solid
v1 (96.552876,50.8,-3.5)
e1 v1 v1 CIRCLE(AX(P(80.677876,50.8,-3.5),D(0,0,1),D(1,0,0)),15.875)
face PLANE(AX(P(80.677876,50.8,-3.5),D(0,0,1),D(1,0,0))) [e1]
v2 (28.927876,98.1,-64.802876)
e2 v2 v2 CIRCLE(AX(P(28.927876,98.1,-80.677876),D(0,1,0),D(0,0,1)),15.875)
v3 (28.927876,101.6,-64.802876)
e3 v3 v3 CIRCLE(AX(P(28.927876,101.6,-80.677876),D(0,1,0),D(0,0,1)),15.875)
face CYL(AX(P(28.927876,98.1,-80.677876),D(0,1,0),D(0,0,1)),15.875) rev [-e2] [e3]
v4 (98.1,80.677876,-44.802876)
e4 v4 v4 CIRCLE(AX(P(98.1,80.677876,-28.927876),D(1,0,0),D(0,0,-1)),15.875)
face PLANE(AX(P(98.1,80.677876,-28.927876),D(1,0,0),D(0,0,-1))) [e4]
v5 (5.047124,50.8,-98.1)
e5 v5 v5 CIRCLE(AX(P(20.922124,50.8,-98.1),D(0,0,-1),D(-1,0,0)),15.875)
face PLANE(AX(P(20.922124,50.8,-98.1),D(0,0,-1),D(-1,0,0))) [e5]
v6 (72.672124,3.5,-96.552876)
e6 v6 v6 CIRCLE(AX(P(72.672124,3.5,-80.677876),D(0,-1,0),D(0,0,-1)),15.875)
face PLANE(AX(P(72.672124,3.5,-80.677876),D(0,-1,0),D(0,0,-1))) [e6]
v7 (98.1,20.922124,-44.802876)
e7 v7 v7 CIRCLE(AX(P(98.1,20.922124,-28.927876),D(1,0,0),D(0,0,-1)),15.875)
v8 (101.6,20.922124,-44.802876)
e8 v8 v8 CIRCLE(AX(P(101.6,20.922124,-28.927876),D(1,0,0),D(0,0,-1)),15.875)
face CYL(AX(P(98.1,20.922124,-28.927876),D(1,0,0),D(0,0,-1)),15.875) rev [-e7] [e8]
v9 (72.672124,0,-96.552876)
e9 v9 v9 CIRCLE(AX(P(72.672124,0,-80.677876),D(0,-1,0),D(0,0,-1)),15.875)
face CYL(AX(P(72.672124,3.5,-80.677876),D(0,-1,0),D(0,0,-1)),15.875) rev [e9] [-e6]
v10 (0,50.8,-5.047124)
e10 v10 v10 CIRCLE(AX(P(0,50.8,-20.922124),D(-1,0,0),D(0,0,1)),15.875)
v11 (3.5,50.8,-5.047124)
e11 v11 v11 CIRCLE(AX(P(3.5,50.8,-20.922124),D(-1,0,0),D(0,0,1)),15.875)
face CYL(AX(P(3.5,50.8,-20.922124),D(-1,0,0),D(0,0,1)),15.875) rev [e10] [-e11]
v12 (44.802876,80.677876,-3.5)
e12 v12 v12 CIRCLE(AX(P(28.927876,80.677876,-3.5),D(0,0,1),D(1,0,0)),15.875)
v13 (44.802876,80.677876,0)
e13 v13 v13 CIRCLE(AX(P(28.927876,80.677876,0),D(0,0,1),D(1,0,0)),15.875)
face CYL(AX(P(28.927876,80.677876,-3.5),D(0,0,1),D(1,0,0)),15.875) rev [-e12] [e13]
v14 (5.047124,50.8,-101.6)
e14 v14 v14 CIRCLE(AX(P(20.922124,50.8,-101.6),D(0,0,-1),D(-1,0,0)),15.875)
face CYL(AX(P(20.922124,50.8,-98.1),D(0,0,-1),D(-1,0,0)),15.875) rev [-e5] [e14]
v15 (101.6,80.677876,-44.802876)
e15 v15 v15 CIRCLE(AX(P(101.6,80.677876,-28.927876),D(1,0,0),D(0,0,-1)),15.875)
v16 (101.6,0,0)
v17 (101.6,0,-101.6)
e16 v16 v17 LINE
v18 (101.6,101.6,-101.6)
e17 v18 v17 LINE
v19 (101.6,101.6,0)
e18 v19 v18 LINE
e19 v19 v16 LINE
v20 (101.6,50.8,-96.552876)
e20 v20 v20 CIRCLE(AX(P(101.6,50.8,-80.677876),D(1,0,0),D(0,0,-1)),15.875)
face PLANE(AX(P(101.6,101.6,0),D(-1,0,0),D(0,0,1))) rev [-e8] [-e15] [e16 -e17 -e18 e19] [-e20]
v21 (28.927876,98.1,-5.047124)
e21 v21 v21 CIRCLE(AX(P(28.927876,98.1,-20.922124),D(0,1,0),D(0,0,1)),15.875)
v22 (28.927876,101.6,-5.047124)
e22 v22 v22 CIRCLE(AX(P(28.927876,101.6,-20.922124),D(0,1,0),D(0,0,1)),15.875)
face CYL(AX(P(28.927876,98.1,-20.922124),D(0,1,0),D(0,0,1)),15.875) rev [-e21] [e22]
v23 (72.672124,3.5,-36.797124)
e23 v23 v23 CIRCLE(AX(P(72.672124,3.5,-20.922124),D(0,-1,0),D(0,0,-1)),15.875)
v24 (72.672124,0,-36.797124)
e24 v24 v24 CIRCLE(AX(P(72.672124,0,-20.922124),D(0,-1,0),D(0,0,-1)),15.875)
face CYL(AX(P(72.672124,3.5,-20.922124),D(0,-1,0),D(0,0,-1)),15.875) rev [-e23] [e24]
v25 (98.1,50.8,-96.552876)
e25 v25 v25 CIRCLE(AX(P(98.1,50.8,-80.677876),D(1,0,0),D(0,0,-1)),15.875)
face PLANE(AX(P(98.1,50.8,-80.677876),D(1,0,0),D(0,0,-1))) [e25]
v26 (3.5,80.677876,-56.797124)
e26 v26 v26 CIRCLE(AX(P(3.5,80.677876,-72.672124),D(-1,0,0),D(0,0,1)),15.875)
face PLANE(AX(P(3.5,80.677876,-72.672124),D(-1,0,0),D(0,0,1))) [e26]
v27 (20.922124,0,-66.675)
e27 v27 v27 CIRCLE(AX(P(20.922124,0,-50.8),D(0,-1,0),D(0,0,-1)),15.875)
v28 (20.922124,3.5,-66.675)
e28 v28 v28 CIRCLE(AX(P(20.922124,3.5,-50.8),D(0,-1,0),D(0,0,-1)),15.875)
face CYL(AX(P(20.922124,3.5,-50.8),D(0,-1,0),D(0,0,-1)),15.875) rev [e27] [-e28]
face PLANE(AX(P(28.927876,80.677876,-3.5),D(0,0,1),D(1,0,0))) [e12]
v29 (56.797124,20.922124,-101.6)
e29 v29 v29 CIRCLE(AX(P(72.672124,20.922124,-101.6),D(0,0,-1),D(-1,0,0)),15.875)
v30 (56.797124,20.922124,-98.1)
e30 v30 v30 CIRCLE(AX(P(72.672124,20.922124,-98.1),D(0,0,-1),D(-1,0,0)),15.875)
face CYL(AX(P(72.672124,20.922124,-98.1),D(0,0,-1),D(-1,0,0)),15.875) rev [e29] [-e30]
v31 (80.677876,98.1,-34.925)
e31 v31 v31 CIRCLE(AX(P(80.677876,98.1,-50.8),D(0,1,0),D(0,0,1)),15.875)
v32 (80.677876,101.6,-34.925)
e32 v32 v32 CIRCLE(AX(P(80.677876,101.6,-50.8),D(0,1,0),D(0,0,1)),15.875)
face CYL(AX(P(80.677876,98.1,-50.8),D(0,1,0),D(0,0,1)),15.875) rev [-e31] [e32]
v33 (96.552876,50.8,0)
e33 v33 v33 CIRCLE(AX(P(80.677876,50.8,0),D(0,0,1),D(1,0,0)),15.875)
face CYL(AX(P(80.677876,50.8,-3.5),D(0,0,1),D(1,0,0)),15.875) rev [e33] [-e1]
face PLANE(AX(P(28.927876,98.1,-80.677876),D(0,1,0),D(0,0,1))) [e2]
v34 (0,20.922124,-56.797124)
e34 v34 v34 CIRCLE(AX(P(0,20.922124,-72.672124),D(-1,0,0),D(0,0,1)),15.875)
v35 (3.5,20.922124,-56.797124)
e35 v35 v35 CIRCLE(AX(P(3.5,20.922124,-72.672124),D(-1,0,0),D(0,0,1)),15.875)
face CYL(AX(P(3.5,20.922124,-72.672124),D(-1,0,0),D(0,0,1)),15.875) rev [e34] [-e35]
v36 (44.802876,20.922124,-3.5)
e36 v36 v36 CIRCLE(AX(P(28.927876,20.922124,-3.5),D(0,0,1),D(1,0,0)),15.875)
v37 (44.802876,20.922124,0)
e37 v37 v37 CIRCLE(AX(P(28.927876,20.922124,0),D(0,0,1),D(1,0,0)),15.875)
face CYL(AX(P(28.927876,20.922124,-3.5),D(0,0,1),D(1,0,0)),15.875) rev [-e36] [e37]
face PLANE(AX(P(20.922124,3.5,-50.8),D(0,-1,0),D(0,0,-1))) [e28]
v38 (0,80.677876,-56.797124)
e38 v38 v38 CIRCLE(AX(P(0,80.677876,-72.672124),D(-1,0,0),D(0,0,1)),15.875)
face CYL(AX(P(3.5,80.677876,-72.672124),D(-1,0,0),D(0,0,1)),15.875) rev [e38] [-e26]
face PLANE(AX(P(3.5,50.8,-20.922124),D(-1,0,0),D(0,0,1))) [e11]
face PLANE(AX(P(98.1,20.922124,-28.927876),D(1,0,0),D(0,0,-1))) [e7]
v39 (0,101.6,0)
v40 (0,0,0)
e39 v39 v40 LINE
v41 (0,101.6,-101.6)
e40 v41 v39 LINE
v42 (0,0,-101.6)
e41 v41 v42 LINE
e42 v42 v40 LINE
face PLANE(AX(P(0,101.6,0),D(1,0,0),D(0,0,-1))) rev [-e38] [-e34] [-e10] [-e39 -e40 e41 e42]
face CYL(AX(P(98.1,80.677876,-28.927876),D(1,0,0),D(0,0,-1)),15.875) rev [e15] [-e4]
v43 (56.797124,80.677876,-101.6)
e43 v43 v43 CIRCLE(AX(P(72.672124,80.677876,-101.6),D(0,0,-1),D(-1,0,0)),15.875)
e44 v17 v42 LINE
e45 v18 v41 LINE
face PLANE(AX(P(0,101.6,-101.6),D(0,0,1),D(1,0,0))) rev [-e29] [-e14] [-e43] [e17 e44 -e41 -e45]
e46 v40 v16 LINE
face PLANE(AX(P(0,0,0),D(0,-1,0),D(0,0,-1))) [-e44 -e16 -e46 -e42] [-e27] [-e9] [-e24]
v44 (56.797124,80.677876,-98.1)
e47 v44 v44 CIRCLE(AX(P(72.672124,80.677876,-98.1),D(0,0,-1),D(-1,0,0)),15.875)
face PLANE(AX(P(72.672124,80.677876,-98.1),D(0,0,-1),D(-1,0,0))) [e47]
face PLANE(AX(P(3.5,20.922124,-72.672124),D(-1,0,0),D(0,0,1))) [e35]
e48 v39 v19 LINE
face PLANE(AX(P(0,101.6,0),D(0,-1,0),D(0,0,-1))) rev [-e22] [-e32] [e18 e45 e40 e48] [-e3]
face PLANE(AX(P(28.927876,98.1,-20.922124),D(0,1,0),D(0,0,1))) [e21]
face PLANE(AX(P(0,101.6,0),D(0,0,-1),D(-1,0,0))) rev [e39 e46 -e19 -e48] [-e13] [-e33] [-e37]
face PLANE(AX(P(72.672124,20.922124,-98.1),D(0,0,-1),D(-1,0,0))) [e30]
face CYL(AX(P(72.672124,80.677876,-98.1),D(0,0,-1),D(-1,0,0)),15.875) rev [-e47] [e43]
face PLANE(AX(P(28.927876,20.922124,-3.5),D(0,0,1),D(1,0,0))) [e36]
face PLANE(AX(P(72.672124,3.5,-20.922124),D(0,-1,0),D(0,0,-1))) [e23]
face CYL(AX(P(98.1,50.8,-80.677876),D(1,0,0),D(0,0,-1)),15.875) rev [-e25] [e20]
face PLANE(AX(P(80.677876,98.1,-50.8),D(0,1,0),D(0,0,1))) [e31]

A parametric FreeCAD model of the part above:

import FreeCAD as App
import Part
import Sketcher

V = App.Vector
Q = App.Units.Quantity

doc = App.newDocument("Part")
params = doc.addObject("Spreadsheet::Sheet", "Params")
for row, (alias, value) in enumerate([
    ("sketch1_width", "4 in"),
    ("pad1_length", "4 in"),
    ("sketch2_diameter", "1.25 in"),
    ("pocket1_length", "3.5 mm"),
    ("sketch3_diameter", "1.25 in"),
    ("pocket2_length", "3.5 mm"),
    ("sketch4_diameter", "1.25 in"),
    ("pocket3_length", "3.5 mm"),
    ("sketch5_diameter", "1.25 in"),
    ("pocket4_length", "3.5 mm"),
    ("sketch6_diameter", "1.25 in"),
    ("pocket5_length", "3.5 mm"),
    ("sketch7_diameter", "1.25 in"),
    ("pocket6_length", "3.5 mm"),
], start=1):
    params.set(f"A{row}", alias)
    params.set(f"B{row}", "=" + value)
    params.setAlias(f"B{row}", alias)

body = doc.addObject("PartDesign::Body", "Body")

# Sketch on XZ plane
sketch1 = doc.addObject("Sketcher::SketchObject", "Sketch")
body.addObject(sketch1)
sketch1.AttachmentSupport = (doc.XZ_Plane, [""])
sketch1.MapMode = "FlatFace"
sketch1.addGeometry([
    Part.LineSegment(V(0, -102, 0), V(0, 0, 0)),
    Part.LineSegment(V(0, 0, 0), V(102, 0, 0)),
    Part.LineSegment(V(102, 0, 0), V(102, -102, 0)),
    Part.LineSegment(V(102, -102, 0), V(0, -102, 0)),
], False)
sketch1.addConstraint([
    Sketcher.Constraint("Coincident", 0, 2, 1, 1),
    Sketcher.Constraint("Coincident", 1, 2, 2, 1),
    Sketcher.Constraint("Coincident", 2, 2, 3, 1),
    Sketcher.Constraint("Coincident", 3, 2, 0, 1),
    Sketcher.Constraint("Vertical", 0),
    Sketcher.Constraint("Horizontal", 1),
    Sketcher.Constraint("Vertical", 2),
    Sketcher.Constraint("Horizontal", 3),
    Sketcher.Constraint("Coincident", 0, 2, -1, 1),
    Sketcher.Constraint("Equal", 3, 0),
    Sketcher.Constraint("DistanceX", 1, 1, 1, 2, Q("4 in")),
])
sketch1.setExpression("Constraints[10]", "Params.sketch1_width")
pad1 = doc.addObject("PartDesign::Pad", "Pad")
body.addObject(pad1)
pad1.Profile = sketch1
pad1.setExpression("Length", "Params.pad1_length")
pad1.Reversed = True

# Sketch on XZ plane
sketch2 = doc.addObject("Sketcher::SketchObject", "Sketch001")
body.addObject(sketch2)
sketch2.AttachmentSupport = (doc.XZ_Plane, [""])
sketch2.MapMode = "FlatFace"
sketch2.AttachmentOffset = App.Placement(V(0, 0, -4 * 25.4), App.Rotation())
sketch2.addGeometry([
    Part.Circle(V(29, -21, 0), V(0, 0, 1), 16),
    Part.Circle(V(29, -81, 0), V(0, 0, 1), 16),
    Part.Circle(V(81, -51, 0), V(0, 0, 1), 16),
], False)
sketch2.addConstraint([
    Sketcher.Constraint("Equal", 0, 1),
    Sketcher.Constraint("Equal", 1, 2),
    Sketcher.Constraint("Vertical", 0, 3, 1, 3),
    Sketcher.Constraint("Diameter", 0, Q("1.25 in")),
    Sketcher.Constraint("DistanceY", 2, 3, -1, 1, Q("2 in")),
    Sketcher.Constraint("DistanceX", 0, 3, 2, 3, Q("51.75 mm")),
    Sketcher.Constraint("DistanceX", -1, 1, 0, 3, Q("28.927876 mm")),
    Sketcher.Constraint("DistanceY", 0, 3, -1, 1, Q("20.922124 mm")),
    Sketcher.Constraint("DistanceY", 1, 3, -1, 1, Q("80.677876 mm")),
])
sketch2.setExpression("Constraints[3]", "Params.sketch2_diameter")
pocket1 = doc.addObject("PartDesign::Pocket", "Pocket")
body.addObject(pocket1)
pocket1.Profile = sketch2
pocket1.setExpression("Length", "Params.pocket1_length")
pocket1.Reversed = True

# Sketch on YZ plane
sketch3 = doc.addObject("Sketcher::SketchObject", "Sketch002")
body.addObject(sketch3)
sketch3.AttachmentSupport = (doc.YZ_Plane, [""])
sketch3.MapMode = "FlatFace"
sketch3.addGeometry([
    Part.Circle(V(21, -73, 0), V(0, 0, 1), 16),
    Part.Circle(V(81, -73, 0), V(0, 0, 1), 16),
    Part.Circle(V(51, -21, 0), V(0, 0, 1), 16),
], False)
sketch3.addConstraint([
    Sketcher.Constraint("Equal", 0, 1),
    Sketcher.Constraint("Equal", 1, 2),
    Sketcher.Constraint("Horizontal", 0, 3, 1, 3),
    Sketcher.Constraint("Diameter", 0, Q("1.25 in")),
    Sketcher.Constraint("DistanceX", -1, 1, 2, 3, Q("2 in")),
    Sketcher.Constraint("DistanceY", 0, 3, 2, 3, Q("51.75 mm")),
    Sketcher.Constraint("DistanceX", -1, 1, 0, 3, Q("20.922124 mm")),
    Sketcher.Constraint("DistanceY", 0, 3, -1, 1, Q("72.672124 mm")),
    Sketcher.Constraint("DistanceX", -1, 1, 1, 3, Q("80.677876 mm")),
])
sketch3.setExpression("Constraints[3]", "Params.sketch3_diameter")
pocket2 = doc.addObject("PartDesign::Pocket", "Pocket001")
body.addObject(pocket2)
pocket2.Profile = sketch3
pocket2.setExpression("Length", "Params.pocket2_length")
pocket2.Reversed = True

# Sketch on XY plane
sketch4 = doc.addObject("Sketcher::SketchObject", "Sketch003")
body.addObject(sketch4)
sketch4.AttachmentSupport = (doc.XY_Plane, [""])
sketch4.MapMode = "FlatFace"
sketch4.AttachmentOffset = App.Placement(V(0, 0, -4 * 25.4), App.Rotation())
sketch4.addGeometry([
    Part.Circle(V(73, 21, 0), V(0, 0, 1), 16),
    Part.Circle(V(73, 81, 0), V(0, 0, 1), 16),
    Part.Circle(V(21, 51, 0), V(0, 0, 1), 16),
], False)
sketch4.addConstraint([
    Sketcher.Constraint("Equal", 0, 1),
    Sketcher.Constraint("Equal", 1, 2),
    Sketcher.Constraint("Vertical", 0, 3, 1, 3),
    Sketcher.Constraint("Diameter", 0, Q("1.25 in")),
    Sketcher.Constraint("DistanceY", -1, 1, 2, 3, Q("2 in")),
    Sketcher.Constraint("DistanceX", 2, 3, 0, 3, Q("51.75 mm")),
    Sketcher.Constraint("DistanceX", -1, 1, 0, 3, Q("72.672124 mm")),
    Sketcher.Constraint("DistanceY", -1, 1, 0, 3, Q("20.922124 mm")),
    Sketcher.Constraint("DistanceY", -1, 1, 1, 3, Q("80.677876 mm")),
])
sketch4.setExpression("Constraints[3]", "Params.sketch4_diameter")
pocket3 = doc.addObject("PartDesign::Pocket", "Pocket002")
body.addObject(pocket3)
pocket3.Profile = sketch4
pocket3.setExpression("Length", "Params.pocket3_length")
pocket3.Reversed = True

# Sketch on YZ plane
sketch5 = doc.addObject("Sketcher::SketchObject", "Sketch004")
body.addObject(sketch5)
sketch5.AttachmentSupport = (doc.YZ_Plane, [""])
sketch5.MapMode = "FlatFace"
sketch5.AttachmentOffset = App.Placement(V(0, 0, 4 * 25.4), App.Rotation())
sketch5.addGeometry([
    Part.Circle(V(21, -29, 0), V(0, 0, 1), 16),
    Part.Circle(V(81, -29, 0), V(0, 0, 1), 16),
    Part.Circle(V(51, -81, 0), V(0, 0, 1), 16),
], False)
sketch5.addConstraint([
    Sketcher.Constraint("Equal", 0, 1),
    Sketcher.Constraint("Equal", 1, 2),
    Sketcher.Constraint("Horizontal", 0, 3, 1, 3),
    Sketcher.Constraint("Diameter", 0, Q("1.25 in")),
    Sketcher.Constraint("DistanceX", -1, 1, 2, 3, Q("2 in")),
    Sketcher.Constraint("DistanceY", 2, 3, 0, 3, Q("51.75 mm")),
    Sketcher.Constraint("DistanceX", -1, 1, 0, 3, Q("20.922124 mm")),
    Sketcher.Constraint("DistanceY", 0, 3, -1, 1, Q("28.927876 mm")),
    Sketcher.Constraint("DistanceX", -1, 1, 1, 3, Q("80.677876 mm")),
])
sketch5.setExpression("Constraints[3]", "Params.sketch5_diameter")
pocket4 = doc.addObject("PartDesign::Pocket", "Pocket003")
body.addObject(pocket4)
pocket4.Profile = sketch5
pocket4.setExpression("Length", "Params.pocket4_length")

# Sketch on XY plane
sketch6 = doc.addObject("Sketcher::SketchObject", "Sketch005")
body.addObject(sketch6)
sketch6.AttachmentSupport = (doc.XY_Plane, [""])
sketch6.MapMode = "FlatFace"
sketch6.addGeometry([
    Part.Circle(V(29, 21, 0), V(0, 0, 1), 16),
    Part.Circle(V(29, 81, 0), V(0, 0, 1), 16),
    Part.Circle(V(81, 51, 0), V(0, 0, 1), 16),
], False)
sketch6.addConstraint([
    Sketcher.Constraint("Equal", 0, 1),
    Sketcher.Constraint("Equal", 1, 2),
    Sketcher.Constraint("Vertical", 0, 3, 1, 3),
    Sketcher.Constraint("Diameter", 0, Q("1.25 in")),
    Sketcher.Constraint("DistanceY", -1, 1, 2, 3, Q("2 in")),
    Sketcher.Constraint("DistanceX", 0, 3, 2, 3, Q("51.75 mm")),
    Sketcher.Constraint("DistanceX", -1, 1, 0, 3, Q("28.927876 mm")),
    Sketcher.Constraint("DistanceY", -1, 1, 0, 3, Q("20.922124 mm")),
    Sketcher.Constraint("DistanceY", -1, 1, 1, 3, Q("80.677876 mm")),
])
sketch6.setExpression("Constraints[3]", "Params.sketch6_diameter")
pocket5 = doc.addObject("PartDesign::Pocket", "Pocket004")
body.addObject(pocket5)
pocket5.Profile = sketch6
pocket5.setExpression("Length", "Params.pocket5_length")

# Sketch on XZ plane
sketch7 = doc.addObject("Sketcher::SketchObject", "Sketch006")
body.addObject(sketch7)
sketch7.AttachmentSupport = (doc.XZ_Plane, [""])
sketch7.MapMode = "FlatFace"
sketch7.addGeometry([
    Part.Circle(V(73, -21, 0), V(0, 0, 1), 16),
    Part.Circle(V(73, -81, 0), V(0, 0, 1), 16),
    Part.Circle(V(21, -51, 0), V(0, 0, 1), 16),
], False)
sketch7.addConstraint([
    Sketcher.Constraint("Equal", 0, 1),
    Sketcher.Constraint("Equal", 1, 2),
    Sketcher.Constraint("Vertical", 0, 3, 1, 3),
    Sketcher.Constraint("Diameter", 0, Q("1.25 in")),
    Sketcher.Constraint("DistanceY", 2, 3, -1, 1, Q("2 in")),
    Sketcher.Constraint("DistanceX", 2, 3, 0, 3, Q("51.75 mm")),
    Sketcher.Constraint("DistanceX", -1, 1, 0, 3, Q("72.672124 mm")),
    Sketcher.Constraint("DistanceY", 0, 3, -1, 1, Q("20.922124 mm")),
    Sketcher.Constraint("DistanceY", 1, 3, -1, 1, Q("80.677876 mm")),
])
sketch7.setExpression("Constraints[3]", "Params.sketch7_diameter")
pocket6 = doc.addObject("PartDesign::Pocket", "Pocket005")
body.addObject(pocket6)
pocket6.Profile = sketch7
pocket6.setExpression("Length", "Params.pocket6_length")

doc.recompute()
